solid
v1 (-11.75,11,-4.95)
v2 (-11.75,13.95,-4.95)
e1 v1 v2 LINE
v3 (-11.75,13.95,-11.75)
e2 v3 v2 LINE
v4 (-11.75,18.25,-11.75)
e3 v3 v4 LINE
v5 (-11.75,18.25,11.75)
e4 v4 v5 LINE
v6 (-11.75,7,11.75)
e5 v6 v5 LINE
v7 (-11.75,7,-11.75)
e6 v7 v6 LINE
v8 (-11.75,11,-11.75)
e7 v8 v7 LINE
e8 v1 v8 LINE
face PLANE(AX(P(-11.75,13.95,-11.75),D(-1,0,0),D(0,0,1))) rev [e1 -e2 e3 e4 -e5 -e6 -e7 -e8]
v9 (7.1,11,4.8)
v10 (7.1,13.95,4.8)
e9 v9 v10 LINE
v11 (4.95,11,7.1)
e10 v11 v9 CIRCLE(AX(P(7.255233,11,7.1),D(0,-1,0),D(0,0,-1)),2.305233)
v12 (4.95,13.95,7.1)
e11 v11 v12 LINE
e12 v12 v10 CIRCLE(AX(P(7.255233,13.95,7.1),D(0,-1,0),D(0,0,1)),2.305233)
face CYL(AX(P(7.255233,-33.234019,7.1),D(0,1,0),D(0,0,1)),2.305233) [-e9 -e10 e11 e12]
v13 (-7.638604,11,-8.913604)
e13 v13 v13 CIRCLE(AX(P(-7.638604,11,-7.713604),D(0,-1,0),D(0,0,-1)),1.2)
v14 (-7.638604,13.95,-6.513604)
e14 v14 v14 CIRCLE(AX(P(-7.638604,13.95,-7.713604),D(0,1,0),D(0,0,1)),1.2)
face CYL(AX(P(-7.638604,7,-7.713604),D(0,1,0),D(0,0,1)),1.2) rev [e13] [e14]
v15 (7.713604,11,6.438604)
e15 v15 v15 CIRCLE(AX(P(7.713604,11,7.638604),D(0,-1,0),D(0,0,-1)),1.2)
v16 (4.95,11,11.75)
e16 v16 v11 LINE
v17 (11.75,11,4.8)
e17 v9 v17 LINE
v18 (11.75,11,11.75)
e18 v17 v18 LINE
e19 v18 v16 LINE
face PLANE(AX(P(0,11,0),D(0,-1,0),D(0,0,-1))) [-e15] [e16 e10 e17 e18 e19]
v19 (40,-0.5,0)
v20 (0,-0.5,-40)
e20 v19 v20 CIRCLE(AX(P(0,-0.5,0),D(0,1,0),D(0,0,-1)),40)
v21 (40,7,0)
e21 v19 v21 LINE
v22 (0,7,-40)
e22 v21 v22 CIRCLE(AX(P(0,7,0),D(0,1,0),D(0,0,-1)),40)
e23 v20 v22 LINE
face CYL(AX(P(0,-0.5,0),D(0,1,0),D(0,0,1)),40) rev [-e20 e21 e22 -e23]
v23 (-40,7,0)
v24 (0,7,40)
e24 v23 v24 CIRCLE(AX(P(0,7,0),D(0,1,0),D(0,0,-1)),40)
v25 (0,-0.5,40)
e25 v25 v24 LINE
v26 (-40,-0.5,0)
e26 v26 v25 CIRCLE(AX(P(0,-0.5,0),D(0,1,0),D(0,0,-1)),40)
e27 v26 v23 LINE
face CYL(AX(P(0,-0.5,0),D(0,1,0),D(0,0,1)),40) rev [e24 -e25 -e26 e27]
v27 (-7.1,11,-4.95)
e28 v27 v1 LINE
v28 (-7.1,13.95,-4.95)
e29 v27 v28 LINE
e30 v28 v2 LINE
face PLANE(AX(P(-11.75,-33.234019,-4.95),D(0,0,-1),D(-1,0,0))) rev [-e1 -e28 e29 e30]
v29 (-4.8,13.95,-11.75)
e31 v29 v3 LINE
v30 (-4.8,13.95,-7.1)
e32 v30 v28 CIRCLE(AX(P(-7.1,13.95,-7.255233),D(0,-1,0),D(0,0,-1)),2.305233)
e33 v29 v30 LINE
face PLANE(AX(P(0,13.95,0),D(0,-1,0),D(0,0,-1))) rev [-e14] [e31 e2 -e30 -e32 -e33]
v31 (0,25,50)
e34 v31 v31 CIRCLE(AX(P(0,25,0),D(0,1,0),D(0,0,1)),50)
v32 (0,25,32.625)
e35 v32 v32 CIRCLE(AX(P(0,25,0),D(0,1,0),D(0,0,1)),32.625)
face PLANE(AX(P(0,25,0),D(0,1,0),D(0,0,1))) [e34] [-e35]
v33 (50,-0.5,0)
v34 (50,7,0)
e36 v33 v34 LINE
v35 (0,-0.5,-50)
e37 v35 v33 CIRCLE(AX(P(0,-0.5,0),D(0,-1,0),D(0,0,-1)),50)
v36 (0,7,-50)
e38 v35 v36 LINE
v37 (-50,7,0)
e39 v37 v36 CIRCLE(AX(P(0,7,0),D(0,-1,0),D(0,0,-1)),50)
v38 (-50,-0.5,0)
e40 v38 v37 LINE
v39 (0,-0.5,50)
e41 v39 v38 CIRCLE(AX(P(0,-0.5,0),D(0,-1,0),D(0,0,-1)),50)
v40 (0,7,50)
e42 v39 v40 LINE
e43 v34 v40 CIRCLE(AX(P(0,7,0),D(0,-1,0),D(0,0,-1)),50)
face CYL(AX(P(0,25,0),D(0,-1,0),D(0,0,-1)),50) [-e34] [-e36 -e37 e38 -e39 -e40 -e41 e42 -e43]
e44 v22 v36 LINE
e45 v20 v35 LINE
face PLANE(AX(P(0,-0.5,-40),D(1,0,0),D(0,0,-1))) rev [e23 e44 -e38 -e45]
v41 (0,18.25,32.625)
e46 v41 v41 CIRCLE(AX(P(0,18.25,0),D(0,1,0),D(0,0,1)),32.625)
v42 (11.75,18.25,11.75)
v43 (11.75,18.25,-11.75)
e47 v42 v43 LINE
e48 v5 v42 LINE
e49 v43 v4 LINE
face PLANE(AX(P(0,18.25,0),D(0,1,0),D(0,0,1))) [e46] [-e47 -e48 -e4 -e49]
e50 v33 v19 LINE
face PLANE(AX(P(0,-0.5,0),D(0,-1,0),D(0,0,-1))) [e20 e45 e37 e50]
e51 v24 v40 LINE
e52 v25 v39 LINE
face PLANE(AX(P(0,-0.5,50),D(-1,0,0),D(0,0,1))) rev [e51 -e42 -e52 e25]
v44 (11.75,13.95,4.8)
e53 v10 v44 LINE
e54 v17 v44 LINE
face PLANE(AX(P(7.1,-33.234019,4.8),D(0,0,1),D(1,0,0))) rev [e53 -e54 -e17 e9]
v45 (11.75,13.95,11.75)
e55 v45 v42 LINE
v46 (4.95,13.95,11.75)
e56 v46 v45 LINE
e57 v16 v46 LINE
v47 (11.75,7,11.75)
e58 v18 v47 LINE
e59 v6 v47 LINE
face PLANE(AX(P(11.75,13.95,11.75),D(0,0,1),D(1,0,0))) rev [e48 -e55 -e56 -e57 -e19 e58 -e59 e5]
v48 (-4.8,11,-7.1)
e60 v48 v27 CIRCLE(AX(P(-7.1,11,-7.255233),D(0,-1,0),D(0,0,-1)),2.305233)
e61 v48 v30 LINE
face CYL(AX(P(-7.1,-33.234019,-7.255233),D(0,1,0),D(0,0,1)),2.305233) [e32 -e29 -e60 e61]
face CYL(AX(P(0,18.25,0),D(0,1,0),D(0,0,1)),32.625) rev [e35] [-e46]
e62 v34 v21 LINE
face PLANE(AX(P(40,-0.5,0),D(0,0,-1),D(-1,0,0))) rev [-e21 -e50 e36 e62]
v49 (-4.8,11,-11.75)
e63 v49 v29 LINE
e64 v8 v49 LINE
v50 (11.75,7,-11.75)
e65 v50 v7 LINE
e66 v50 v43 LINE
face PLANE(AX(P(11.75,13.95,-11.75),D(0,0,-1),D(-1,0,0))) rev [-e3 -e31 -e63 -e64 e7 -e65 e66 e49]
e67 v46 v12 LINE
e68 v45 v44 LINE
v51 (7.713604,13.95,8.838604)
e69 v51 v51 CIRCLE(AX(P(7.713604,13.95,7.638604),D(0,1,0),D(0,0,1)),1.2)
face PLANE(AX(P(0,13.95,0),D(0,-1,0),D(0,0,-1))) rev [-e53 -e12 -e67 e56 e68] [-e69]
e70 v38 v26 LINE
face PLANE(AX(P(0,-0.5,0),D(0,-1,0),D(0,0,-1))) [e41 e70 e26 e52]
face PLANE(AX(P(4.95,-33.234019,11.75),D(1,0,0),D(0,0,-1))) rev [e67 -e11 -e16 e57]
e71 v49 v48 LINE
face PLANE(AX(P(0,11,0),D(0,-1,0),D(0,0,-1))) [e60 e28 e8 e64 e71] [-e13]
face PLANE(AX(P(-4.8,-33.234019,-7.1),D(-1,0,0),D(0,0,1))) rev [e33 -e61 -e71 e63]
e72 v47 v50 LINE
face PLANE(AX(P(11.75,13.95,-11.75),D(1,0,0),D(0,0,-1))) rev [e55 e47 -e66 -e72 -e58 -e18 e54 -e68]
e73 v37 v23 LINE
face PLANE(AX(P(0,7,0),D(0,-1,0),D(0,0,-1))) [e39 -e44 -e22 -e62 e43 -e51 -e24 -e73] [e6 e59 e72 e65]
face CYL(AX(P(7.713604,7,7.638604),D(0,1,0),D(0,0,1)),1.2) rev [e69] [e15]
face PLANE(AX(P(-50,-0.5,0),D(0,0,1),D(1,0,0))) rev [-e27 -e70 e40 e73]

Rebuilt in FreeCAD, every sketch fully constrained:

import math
import FreeCAD as App
import Part
import Sketcher


def add_polygon(sketch, points):
    """Adds a closed chain of lines whose ends are joined by coincident constraints."""
    first, n = sketch.GeometryCount, len(points)
    for a, b in zip(points, points[1:] + points[:1]):
        sketch.addGeometry(Part.LineSegment(App.Vector(*a, 0), App.Vector(*b, 0)), False)
    for i in range(n):
        sketch.addConstraint(Sketcher.Constraint("Coincident", first + i, 2, first + (i + 1) % n, 1))

doc = App.newDocument("Part")
body = doc.addObject("PartDesign::Body", "Body")

# Sketch on XZ plane
sketch1 = body.newObject("Sketcher::SketchObject", "Sketch")
sketch1.AttachmentSupport = (doc.getObject("XZ_Plane"), [""])
sketch1.MapMode = "FlatFace"
sketch1.addGeometry(Part.Circle(App.Vector(0, 0, 0), App.Vector(0, 0, 1), 50), False)
sketch1.addConstraint(Sketcher.Constraint("Coincident", 0, 3, -1, 1))
sketch1.addConstraint(Sketcher.Constraint("Diameter", 0, 100.0))
pad1 = body.newObject("PartDesign::Pad", "Pad")
pad1.Profile = sketch1
pad1.Length = 25
pad1.Reversed = True

# Sketch on XZ plane
sketch2 = body.newObject("Sketcher::SketchObject", "Sketch001")
sketch2.AttachmentSupport = (doc.getObject("XZ_Plane"), [""])
sketch2.MapMode = "FlatFace"
sketch2.AttachmentOffset = App.Placement(App.Vector(0, 0, -25), App.Rotation())
sketch2.addGeometry(Part.Circle(App.Vector(0, 0, 0), App.Vector(0, 0, 1), 33), False)
sketch2.addConstraint(Sketcher.Constraint("Coincident", 0, 3, -1, 1))
sketch2.addConstraint(Sketcher.Constraint("Diameter", 0, 65.25))
pocket1 = body.newObject("PartDesign::Pocket", "Pocket")
pocket1.Profile = sketch2
pocket1.Length = 6.75
pocket1.Reversed = True

# Sketch on XZ plane
sketch3 = body.newObject("Sketcher::SketchObject", "Sketch002")
sketch3.AttachmentSupport = (doc.getObject("XZ_Plane"), [""])
sketch3.MapMode = "FlatFace"
sketch3.AttachmentOffset = App.Placement(App.Vector(0, 0, -18.25), App.Rotation())
add_polygon(sketch3, [(-12, -12), (-12, 12), (12, 12), (12, -12)])  # lines 0-3
sketch3.addConstraint(Sketcher.Constraint("Vertical", 0))
sketch3.addConstraint(Sketcher.Constraint("Horizontal", 1))
sketch3.addConstraint(Sketcher.Constraint("Vertical", 2))
sketch3.addConstraint(Sketcher.Constraint("Horizontal", 3))
sketch3.addConstraint(Sketcher.Constraint("Symmetric", 0, 2, 2, 2, -1, 1))
sketch3.addConstraint(Sketcher.Constraint("Equal", 3, 0))
sketch3.addConstraint(Sketcher.Constraint("DistanceX", 1, 1, 1, 2, 23.5))
pocket2 = body.newObject("PartDesign::Pocket", "Pocket001")
pocket2.Profile = sketch3
pocket2.Length = 4.3
pocket2.Reversed = True

# Sketch on XZ plane
sketch4 = body.newObject("Sketcher::SketchObject", "Sketch003")
sketch4.AttachmentSupport = (doc.getObject("XZ_Plane"), [""])
sketch4.MapMode = "FlatFace"
sketch4.AttachmentOffset = App.Placement(App.Vector(0, 0, -13.95), App.Rotation())
sketch4.addGeometry(Part.LineSegment(App.Vector(-7.1, -5, 0), App.Vector(-11.8, -5, 0)), False)
sketch4.addGeometry(Part.LineSegment(App.Vector(-11.8, -5, 0), App.Vector(-11.8, 11.8, 0)), False)
sketch4.addGeometry(Part.LineSegment(App.Vector(-11.8, 11.8, 0), App.Vector(5, 11.8, 0)), False)
sketch4.addGeometry(Part.LineSegment(App.Vector(5, 11.8, 0), App.Vector(5, 7.1, 0)), False)
sketch4.addGeometry(Part.ArcOfCircle(Part.Circle(App.Vector(7.3, 7.1, 0), App.Vector(0, 0, 1), 2.3), math.radians(180), math.radians(266)), False)
sketch4.addGeometry(Part.LineSegment(App.Vector(7.1, 4.8, 0), App.Vector(11.8, 4.8, 0)), False)
sketch4.addGeometry(Part.LineSegment(App.Vector(11.8, 4.8, 0), App.Vector(11.8, -11.8, 0)), False)
sketch4.addGeometry(Part.LineSegment(App.Vector(11.8, -11.8, 0), App.Vector(-4.8, -11.8, 0)), False)
sketch4.addGeometry(Part.LineSegment(App.Vector(-4.8, -11.8, 0), App.Vector(-4.8, -7.1, 0)), False)
sketch4.addGeometry(Part.ArcOfCircle(Part.Circle(App.Vector(-7.1, -7.3, 0), App.Vector(0, 0, 1), 2.3), math.radians(4), math.radians(90)), False)
sketch4.addConstraint(Sketcher.Constraint("Coincident", 0, 2, 1, 1))
sketch4.addConstraint(Sketcher.Constraint("Coincident", 1, 2, 2, 1))
sketch4.addConstraint(Sketcher.Constraint("Coincident", 2, 2, 3, 1))
sketch4.addConstraint(Sketcher.Constraint("Tangent", 3, 2, 4, 1))
sketch4.addConstraint(Sketcher.Constraint("Coincident", 4, 2, 5, 1))
sketch4.addConstraint(Sketcher.Constraint("Coincident", 5, 2, 6, 1))
sketch4.addConstraint(Sketcher.Constraint("Coincident", 6, 2, 7, 1))
sketch4.addConstraint(Sketcher.Constraint("Coincident", 7, 2, 8, 1))
sketch4.addConstraint(Sketcher.Constraint("Coincident", 8, 2, 9, 1))
sketch4.addConstraint(Sketcher.Constraint("Tangent", 9, 2, 0, 1))
sketch4.addConstraint(Sketcher.Constraint("Horizontal", 0))
sketch4.addConstraint(Sketcher.Constraint("Vertical", 1))
sketch4.addConstraint(Sketcher.Constraint("Horizontal", 2))
sketch4.addConstraint(Sketcher.Constraint("Vertical", 3))
sketch4.addConstraint(Sketcher.Constraint("Horizontal", 5))
sketch4.addConstraint(Sketcher.Constraint("Vertical", 6))
sketch4.addConstraint(Sketcher.Constraint("Horizontal", 7))
sketch4.addConstraint(Sketcher.Constraint("Vertical", 8))
sketch4.addConstraint(Sketcher.Constraint("Equal", 4, 9))
sketch4.addConstraint(Sketcher.Constraint("Symmetric", 1, 2, 6, 2, -1, 1))
sketch4.addConstraint(Sketcher.Constraint("Equal", 0, 5))
sketch4.addConstraint(Sketcher.Constraint("Equal", 2, 1))
sketch4.addConstraint(Sketcher.Constraint("Equal", 5, 3))
sketch4.addConstraint(Sketcher.Constraint("Equal", 7, 6))
sketch4.addConstraint(Sketcher.Constraint("Equal", 3, 8))
sketch4.addConstraint(Sketcher.Constraint("DistanceX", 2, 1, 2, 2, 16.7))
sketch4.addConstraint(Sketcher.Constraint("DistanceX", 0, 2, 0, 1, 4.65))
sketch4.addConstraint(Sketcher.Constraint("DistanceX", 7, 2, 7, 1, 16.55))
sketch4.addConstraint(Sketcher.Constraint("DistanceY", -1, 1, 4, 3, 7.1))
pocket3 = body.newObject("PartDesign::Pocket", "Pocket002")
pocket3.Profile = sketch4
pocket3.Length = 13.95
pocket3.Reversed = True

# Sketch on XZ plane
sketch5 = body.newObject("Sketcher::SketchObject", "Sketch004")
sketch5.AttachmentSupport = (doc.getObject("XZ_Plane"), [""])
sketch5.MapMode = "FlatFace"
add_polygon(sketch5, [(-12, 12), (-12, -12), (12, -12), (12, 12)])  # lines 0-3
sketch5.addConstraint(Sketcher.Constraint("Vertical", 0))
sketch5.addConstraint(Sketcher.Constraint("Horizontal", 1))
sketch5.addConstraint(Sketcher.Constraint("Vertical", 2))
sketch5.addConstraint(Sketcher.Constraint("Horizontal", 3))
sketch5.addConstraint(Sketcher.Constraint("Symmetric", 0, 2, 2, 2, -1, 1))
sketch5.addConstraint(Sketcher.Constraint("Equal", 3, 0))
sketch5.addConstraint(Sketcher.Constraint("DistanceX", 1, 1, 1, 2, 23.5))
pocket4 = body.newObject("PartDesign::Pocket", "Pocket003")
pocket4.Profile = sketch5
pocket4.Length = 11

# Sketch on XZ plane
sketch6 = body.newObject("Sketcher::SketchObject", "Sketch005")
sketch6.AttachmentSupport = (doc.getObject("XZ_Plane"), [""])
sketch6.MapMode = "FlatFace"
sketch6.addGeometry(Part.Circle(App.Vector(0, 0, 0), App.Vector(0, 0, 1), 50), False)
sketch6.addConstraint(Sketcher.Constraint("Coincident", 0, 3, -1, 1))
sketch6.addConstraint(Sketcher.Constraint("Diameter", 0, 100.0))
pocket5 = body.newObject("PartDesign::Pocket", "Pocket004")
pocket5.Profile = sketch6
pocket5.Length = 7

# Sketch on XZ plane
sketch7 = body.newObject("Sketcher::SketchObject", "Sketch006")
sketch7.AttachmentSupport = (doc.getObject("XZ_Plane"), [""])
sketch7.MapMode = "FlatFace"
sketch7.AttachmentOffset = App.Placement(App.Vector(0, 0, -13.95), App.Rotation())
sketch7.addGeometry(Part.Circle(App.Vector(-7.6, -7.7, 0), App.Vector(0, 0, 1), 1.2), False)
sketch7.addGeometry(Part.Circle(App.Vector(7.7, 7.6, 0), App.Vector(0, 0, 1), 1.2), False)
sketch7.addConstraint(Sketcher.Constraint("Equal", 0, 1))
sketch7.addConstraint(Sketcher.Constraint("Diameter", 0, 2.4))
sketch7.addConstraint(Sketcher.Constraint("DistanceX", 0, 3, -1, 1, 7.638604))
sketch7.addConstraint(Sketcher.Constraint("DistanceY", 0, 3, -1, 1, 7.713604))
sketch7.addConstraint(Sketcher.Constraint("DistanceX", -1, 1, 1, 3, 7.713604))
sketch7.addConstraint(Sketcher.Constraint("DistanceY", -1, 1, 1, 3, 7.638604))
pocket6 = body.newObject("PartDesign::Pocket", "Pocket005")
pocket6.Profile = sketch7
pocket6.Type = "ThroughAll"
pocket6.Reversed = True

# Sketch on XZ plane
sketch8 = body.newObject("Sketcher::SketchObject", "Sketch007")
sketch8.AttachmentSupport = (doc.getObject("XZ_Plane"), [""])
sketch8.MapMode = "FlatFace"
sketch8.AttachmentOffset = App.Placement(App.Vector(0, 0, 0.5), App.Rotation())
sketch8.addGeometry(Part.LineSegment(App.Vector(-50, 0, 0), App.Vector(-40, 0, 0)), False)
sketch8.addGeometry(Part.ArcOfCircle(Part.Circle(App.Vector(0, 0, 0), App.Vector(0, 0, 1), 40), math.radians(90), math.radians(180)), False)
sketch8.addGeometry(Part.LineSegment(App.Vector(0, 40, 0), App.Vector(0, 50, 0)), False)
sketch8.addGeometry(Part.ArcOfCircle(Part.Circle(App.Vector(0, 0, 0), App.Vector(0, 0, 1), 50), math.radians(90), math.radians(180)), False)
sketch8.addGeometry(Part.LineSegment(App.Vector(50, 0, 0), App.Vector(40, 0, 0)), False)
sketch8.addGeometry(Part.ArcOfCircle(Part.Circle(App.Vector(0, 0, 0), App.Vector(0, 0, 1), 40), math.radians(-90), math.radians(0)), False)
sketch8.addGeometry(Part.LineSegment(App.Vector(0, -40, 0), App.Vector(0, -50, 0)), False)
sketch8.addGeometry(Part.ArcOfCircle(Part.Circle(App.Vector(0, 0, 0), App.Vector(0, 0, 1), 50), math.radians(-90), math.radians(0)), False)
sketch8.addConstraint(Sketcher.Constraint("Coincident", 0, 2, 1, 2))
sketch8.addConstraint(Sketcher.Constraint("Coincident", 1, 1, 2, 1))
sketch8.addConstraint(Sketcher.Constraint("Coincident", 2, 2, 3, 1))
sketch8.addConstraint(Sketcher.Constraint("Coincident", 3, 2, 0, 1))
sketch8.addConstraint(Sketcher.Constraint("Coincident", 4, 2, 5, 2))
sketch8.addConstraint(Sketcher.Constraint("Coincident", 5, 1, 6, 1))
sketch8.addConstraint(Sketcher.Constraint("Coincident", 6, 2, 7, 1))
sketch8.addConstraint(Sketcher.Constraint("Coincident", 7, 2, 4, 1))
sketch8.addConstraint(Sketcher.Constraint("Horizontal", 0))
sketch8.addConstraint(Sketcher.Constraint("Vertical", 2))
sketch8.addConstraint(Sketcher.Constraint("Horizontal", 4))
sketch8.addConstraint(Sketcher.Constraint("Vertical", 6))
sketch8.addConstraint(Sketcher.Constraint("Coincident", 1, 3, -1, 1))
sketch8.addConstraint(Sketcher.Constraint("Coincident", 3, 3, -1, 1))
sketch8.addConstraint(Sketcher.Constraint("Coincident", 5, 3, -1, 1))
sketch8.addConstraint(Sketcher.Constraint("Coincident", 7, 3, -1, 1))
sketch8.addConstraint(Sketcher.Constraint("Equal", 1, 5))
sketch8.addConstraint(Sketcher.Constraint("Equal", 3, 7))
sketch8.addConstraint(Sketcher.Constraint("PointOnObject", 0, 2, -1))
sketch8.addConstraint(Sketcher.Constraint("PointOnObject", 1, 1, -2))
sketch8.addConstraint(Sketcher.Constraint("PointOnObject", 4, 2, -1))
sketch8.addConstraint(Sketcher.Constraint("PointOnObject", 5, 1, -2))
sketch8.addConstraint(Sketcher.Constraint("Radius", 1, 40.0))
sketch8.addConstraint(Sketcher.Constraint("Radius", 3, 50.0))
pad2 = body.newObject("PartDesign::Pad", "Pad001")
pad2.Profile = sketch8
pad2.Length = 7.5
pad2.Reversed = True

doc.recompute()
